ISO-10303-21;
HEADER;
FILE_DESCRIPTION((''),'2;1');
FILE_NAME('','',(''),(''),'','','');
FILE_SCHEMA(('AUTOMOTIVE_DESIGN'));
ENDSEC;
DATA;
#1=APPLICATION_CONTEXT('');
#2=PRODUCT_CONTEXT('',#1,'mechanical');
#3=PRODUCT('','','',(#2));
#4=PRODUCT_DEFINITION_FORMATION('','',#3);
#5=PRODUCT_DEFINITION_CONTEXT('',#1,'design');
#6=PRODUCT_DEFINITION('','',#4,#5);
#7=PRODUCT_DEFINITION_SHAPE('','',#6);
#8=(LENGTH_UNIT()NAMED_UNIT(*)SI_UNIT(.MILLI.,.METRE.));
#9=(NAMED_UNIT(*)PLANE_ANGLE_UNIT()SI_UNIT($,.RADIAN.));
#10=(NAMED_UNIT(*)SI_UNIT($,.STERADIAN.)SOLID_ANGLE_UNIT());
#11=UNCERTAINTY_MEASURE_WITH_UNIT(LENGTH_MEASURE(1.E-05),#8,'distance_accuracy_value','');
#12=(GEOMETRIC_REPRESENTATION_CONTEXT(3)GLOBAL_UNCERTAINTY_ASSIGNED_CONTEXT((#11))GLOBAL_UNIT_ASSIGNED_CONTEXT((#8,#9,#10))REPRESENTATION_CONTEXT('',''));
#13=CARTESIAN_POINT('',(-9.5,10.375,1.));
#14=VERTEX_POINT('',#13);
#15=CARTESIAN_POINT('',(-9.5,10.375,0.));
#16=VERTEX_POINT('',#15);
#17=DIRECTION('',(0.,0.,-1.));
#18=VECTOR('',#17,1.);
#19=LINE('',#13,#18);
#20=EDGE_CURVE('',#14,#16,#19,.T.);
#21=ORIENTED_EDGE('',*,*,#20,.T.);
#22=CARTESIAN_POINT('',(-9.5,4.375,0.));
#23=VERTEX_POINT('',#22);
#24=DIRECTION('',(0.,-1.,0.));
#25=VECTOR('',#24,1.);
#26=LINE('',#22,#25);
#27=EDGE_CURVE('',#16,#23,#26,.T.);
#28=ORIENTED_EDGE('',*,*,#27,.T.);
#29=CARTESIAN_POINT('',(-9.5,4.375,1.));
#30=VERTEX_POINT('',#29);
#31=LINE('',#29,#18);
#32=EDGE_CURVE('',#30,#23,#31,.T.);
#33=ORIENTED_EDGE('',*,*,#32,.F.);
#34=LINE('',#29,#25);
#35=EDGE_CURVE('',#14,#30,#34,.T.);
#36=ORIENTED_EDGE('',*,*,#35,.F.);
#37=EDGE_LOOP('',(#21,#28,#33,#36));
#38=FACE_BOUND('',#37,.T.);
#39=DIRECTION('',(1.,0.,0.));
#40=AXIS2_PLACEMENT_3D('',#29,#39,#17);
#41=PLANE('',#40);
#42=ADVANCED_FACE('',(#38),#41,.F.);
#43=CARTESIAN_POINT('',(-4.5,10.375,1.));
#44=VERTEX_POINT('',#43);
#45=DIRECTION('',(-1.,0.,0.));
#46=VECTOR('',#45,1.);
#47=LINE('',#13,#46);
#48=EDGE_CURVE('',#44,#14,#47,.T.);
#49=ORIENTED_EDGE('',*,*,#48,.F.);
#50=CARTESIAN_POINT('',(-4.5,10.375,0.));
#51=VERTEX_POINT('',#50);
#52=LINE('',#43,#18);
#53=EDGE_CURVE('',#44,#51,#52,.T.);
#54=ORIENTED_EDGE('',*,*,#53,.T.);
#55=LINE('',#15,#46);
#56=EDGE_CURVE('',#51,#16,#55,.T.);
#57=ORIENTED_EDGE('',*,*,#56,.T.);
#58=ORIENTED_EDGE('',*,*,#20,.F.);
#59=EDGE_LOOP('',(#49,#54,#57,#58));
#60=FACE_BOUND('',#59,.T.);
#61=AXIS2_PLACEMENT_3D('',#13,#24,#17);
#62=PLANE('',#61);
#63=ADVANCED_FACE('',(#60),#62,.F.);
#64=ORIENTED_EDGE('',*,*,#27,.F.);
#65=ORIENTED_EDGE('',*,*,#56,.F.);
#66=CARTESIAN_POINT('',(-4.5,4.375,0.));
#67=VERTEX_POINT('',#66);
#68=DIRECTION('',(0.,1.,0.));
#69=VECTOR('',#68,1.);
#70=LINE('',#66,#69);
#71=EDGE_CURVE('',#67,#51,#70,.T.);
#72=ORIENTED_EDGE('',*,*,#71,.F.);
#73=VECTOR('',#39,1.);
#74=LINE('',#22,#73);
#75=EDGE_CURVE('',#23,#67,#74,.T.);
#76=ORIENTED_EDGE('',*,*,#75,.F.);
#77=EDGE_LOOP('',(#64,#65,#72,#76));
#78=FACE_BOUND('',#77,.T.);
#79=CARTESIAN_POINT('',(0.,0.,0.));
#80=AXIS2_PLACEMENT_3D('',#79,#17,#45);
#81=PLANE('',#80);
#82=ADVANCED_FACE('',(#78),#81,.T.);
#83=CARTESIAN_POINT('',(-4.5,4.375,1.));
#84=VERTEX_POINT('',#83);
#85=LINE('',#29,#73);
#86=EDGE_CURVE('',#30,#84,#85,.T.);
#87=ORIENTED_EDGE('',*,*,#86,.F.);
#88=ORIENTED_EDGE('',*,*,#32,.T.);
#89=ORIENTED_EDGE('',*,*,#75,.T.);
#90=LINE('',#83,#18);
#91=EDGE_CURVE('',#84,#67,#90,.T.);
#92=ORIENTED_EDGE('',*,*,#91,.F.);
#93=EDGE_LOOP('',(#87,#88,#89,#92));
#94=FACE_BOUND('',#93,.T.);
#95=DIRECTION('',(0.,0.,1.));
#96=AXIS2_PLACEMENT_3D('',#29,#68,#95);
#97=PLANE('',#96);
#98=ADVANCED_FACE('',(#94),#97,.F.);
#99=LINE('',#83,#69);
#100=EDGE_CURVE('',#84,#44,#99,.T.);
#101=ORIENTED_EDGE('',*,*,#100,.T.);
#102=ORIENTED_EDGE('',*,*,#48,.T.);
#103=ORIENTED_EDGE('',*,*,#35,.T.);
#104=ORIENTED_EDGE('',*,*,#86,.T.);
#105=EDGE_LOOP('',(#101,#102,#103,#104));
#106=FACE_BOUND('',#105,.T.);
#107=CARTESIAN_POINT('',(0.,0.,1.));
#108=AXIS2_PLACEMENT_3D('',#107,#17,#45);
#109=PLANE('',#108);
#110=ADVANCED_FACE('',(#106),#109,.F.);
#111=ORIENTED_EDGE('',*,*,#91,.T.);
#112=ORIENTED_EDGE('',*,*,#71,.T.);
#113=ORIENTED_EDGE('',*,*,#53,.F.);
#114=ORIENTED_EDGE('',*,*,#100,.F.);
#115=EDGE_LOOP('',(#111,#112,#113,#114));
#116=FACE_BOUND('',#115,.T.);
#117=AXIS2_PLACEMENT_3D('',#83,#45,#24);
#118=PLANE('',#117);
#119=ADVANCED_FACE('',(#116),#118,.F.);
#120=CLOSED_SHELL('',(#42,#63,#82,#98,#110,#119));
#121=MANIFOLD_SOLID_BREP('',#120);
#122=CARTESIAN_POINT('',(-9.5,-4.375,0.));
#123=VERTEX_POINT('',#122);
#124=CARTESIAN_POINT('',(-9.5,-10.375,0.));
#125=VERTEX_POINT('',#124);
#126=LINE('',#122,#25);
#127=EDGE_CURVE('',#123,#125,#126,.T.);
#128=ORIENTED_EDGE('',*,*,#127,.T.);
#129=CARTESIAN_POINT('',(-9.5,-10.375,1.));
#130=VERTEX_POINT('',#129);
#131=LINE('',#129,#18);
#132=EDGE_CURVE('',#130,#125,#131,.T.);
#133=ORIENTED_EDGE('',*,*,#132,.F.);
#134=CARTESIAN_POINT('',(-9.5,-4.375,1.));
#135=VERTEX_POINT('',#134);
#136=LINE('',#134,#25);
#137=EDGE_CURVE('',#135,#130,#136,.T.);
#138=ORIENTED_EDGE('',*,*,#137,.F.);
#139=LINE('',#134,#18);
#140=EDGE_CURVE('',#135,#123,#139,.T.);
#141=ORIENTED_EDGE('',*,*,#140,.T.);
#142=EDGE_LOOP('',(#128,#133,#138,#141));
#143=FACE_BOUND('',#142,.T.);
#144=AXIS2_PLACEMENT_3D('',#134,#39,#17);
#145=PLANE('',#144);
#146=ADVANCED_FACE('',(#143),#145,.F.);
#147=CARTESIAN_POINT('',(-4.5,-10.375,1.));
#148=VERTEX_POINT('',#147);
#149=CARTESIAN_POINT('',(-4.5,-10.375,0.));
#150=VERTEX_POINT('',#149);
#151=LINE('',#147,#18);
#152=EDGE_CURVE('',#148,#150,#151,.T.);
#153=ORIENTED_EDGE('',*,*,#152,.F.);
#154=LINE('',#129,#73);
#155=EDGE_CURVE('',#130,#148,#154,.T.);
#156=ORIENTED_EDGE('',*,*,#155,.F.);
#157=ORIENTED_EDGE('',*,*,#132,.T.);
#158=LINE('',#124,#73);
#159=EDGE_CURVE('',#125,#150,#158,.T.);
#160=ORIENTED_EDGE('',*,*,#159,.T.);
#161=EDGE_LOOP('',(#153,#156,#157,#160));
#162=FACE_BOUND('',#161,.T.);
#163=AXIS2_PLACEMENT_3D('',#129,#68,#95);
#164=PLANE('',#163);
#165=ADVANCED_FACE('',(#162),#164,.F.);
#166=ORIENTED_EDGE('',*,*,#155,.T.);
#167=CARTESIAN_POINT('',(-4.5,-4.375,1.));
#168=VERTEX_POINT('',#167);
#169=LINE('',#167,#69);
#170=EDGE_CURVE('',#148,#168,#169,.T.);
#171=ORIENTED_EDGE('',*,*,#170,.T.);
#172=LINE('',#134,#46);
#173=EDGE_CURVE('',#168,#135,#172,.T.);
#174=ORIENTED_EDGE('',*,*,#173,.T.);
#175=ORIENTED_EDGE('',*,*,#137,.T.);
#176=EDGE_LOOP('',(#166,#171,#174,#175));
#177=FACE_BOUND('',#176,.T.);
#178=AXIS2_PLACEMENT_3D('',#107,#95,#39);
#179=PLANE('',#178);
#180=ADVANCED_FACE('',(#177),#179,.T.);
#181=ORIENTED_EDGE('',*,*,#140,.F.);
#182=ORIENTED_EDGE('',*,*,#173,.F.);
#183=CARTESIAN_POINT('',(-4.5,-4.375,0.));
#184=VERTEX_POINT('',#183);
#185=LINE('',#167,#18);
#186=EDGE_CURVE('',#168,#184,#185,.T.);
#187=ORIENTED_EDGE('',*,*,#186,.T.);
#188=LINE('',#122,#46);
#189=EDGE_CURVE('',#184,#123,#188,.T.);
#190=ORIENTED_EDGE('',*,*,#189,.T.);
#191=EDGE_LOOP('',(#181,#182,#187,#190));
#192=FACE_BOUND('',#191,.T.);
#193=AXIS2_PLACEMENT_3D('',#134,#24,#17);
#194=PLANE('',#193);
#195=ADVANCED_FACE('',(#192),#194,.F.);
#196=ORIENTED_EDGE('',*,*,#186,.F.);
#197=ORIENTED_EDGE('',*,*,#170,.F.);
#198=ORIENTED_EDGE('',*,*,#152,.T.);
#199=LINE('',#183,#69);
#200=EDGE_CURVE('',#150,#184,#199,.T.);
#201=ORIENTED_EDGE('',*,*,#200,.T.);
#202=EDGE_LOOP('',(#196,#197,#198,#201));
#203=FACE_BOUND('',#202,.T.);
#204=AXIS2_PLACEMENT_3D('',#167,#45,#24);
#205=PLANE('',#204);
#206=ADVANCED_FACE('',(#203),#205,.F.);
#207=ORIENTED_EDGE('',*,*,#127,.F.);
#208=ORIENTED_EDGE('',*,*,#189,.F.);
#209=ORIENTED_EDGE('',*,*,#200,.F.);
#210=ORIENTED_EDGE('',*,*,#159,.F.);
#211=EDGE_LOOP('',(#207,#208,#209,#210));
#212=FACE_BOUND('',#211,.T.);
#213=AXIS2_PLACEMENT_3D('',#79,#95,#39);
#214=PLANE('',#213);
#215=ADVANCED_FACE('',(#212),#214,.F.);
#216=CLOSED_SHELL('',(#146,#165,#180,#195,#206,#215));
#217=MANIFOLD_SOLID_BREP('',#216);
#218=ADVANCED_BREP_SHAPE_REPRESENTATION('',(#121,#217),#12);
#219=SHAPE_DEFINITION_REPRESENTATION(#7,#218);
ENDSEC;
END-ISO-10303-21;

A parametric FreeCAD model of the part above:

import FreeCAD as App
import Part
import Sketcher
from FreeCAD import Vector

doc = App.newDocument("Part")
params = doc.addObject("Spreadsheet::Sheet", "Params")
for row, (alias, value) in enumerate([
    ("sketch1_width", "5 mm"),
    ("sketch1_height", "6 mm"),
    ("pad1_length", "1 mm"),
    ("sketch2_width", "5 mm"),
    ("sketch2_height", "6 mm"),
    ("pad2_length", "1 mm"),
], start=1):
    params.set(f"A{row}", alias)
    params.set(f"B{row}", "=" + value)
    params.setAlias(f"B{row}", alias)

body = doc.addObject("PartDesign::Body", "Body")

# Sketch on XY plane
sketch1 = doc.addObject("Sketcher::SketchObject", "Sketch")
body.addObject(sketch1)
sketch1.AttachmentSupport = (doc.XY_Plane, [""])
sketch1.MapMode = "FlatFace"
sketch1.addGeometry([
    Part.LineSegment(Vector(-10, 10, 0), Vector(-10, 4, 0)),
    Part.LineSegment(Vector(-10, 4, 0), Vector(-4, 4, 0)),
    Part.LineSegment(Vector(-4, 4, 0), Vector(-4, 10, 0)),
    Part.LineSegment(Vector(-4, 10, 0), Vector(-10, 10, 0)),
], False)
sketch1.addConstraint([
    Sketcher.Constraint("Coincident", 0, 2, 1, 1),
    Sketcher.Constraint("Coincident", 1, 2, 2, 1),
    Sketcher.Constraint("Coincident", 2, 2, 3, 1),
    Sketcher.Constraint("Coincident", 3, 2, 0, 1),
    Sketcher.Constraint("Vertical", 0),
    Sketcher.Constraint("Horizontal", 1),
    Sketcher.Constraint("Vertical", 2),
    Sketcher.Constraint("Horizontal", 3),
    Sketcher.Constraint("DistanceX", 1, 1, 1, 2, 5.0),
    Sketcher.Constraint("DistanceY", 0, 2, 0, 1, 6.0),
    Sketcher.Constraint("DistanceX", 0, 2, -1, 1, 9.5),
    Sketcher.Constraint("DistanceY", -1, 1, 0, 2, 4.375),
])
sketch1.setExpression("Constraints[8]", "Params.sketch1_width")
sketch1.setExpression("Constraints[9]", "Params.sketch1_height")
pad1 = doc.addObject("PartDesign::Pad", "Pad")
body.addObject(pad1)
pad1.Profile = sketch1
pad1.setExpression("Length", "Params.pad1_length")
body2 = doc.addObject("PartDesign::Body", "Body001")

# Sketch on XY plane
sketch2 = doc.addObject("Sketcher::SketchObject", "Sketch001")
body2.addObject(sketch2)
sketch2.AttachmentSupport = (doc.getObject("XY_Plane001"), [""])
sketch2.MapMode = "FlatFace"
sketch2.addGeometry([
    Part.LineSegment(Vector(-10, -4, 0), Vector(-10, -10, 0)),
    Part.LineSegment(Vector(-10, -10, 0), Vector(-4, -10, 0)),
    Part.LineSegment(Vector(-4, -10, 0), Vector(-4, -4, 0)),
    Part.LineSegment(Vector(-4, -4, 0), Vector(-10, -4, 0)),
], False)
sketch2.addConstraint([
    Sketcher.Constraint("Coincident", 0, 2, 1, 1),
    Sketcher.Constraint("Coincident", 1, 2, 2, 1),
    Sketcher.Constraint("Coincident", 2, 2, 3, 1),
    Sketcher.Constraint("Coincident", 3, 2, 0, 1),
    Sketcher.Constraint("Vertical", 0),
    Sketcher.Constraint("Horizontal", 1),
    Sketcher.Constraint("Vertical", 2),
    Sketcher.Constraint("Horizontal", 3),
    Sketcher.Constraint("DistanceX", 1, 1, 1, 2, 5.0),
    Sketcher.Constraint("DistanceY", 0, 2, 0, 1, 6.0),
    Sketcher.Constraint("DistanceX", 0, 2, -1, 1, 9.5),
    Sketcher.Constraint("DistanceY", 0, 2, -1, 1, 10.375),
])
sketch2.setExpression("Constraints[8]", "Params.sketch2_width")
sketch2.setExpression("Constraints[9]", "Params.sketch2_height")
pad2 = doc.addObject("PartDesign::Pad", "Pad001")
body2.addObject(pad2)
pad2.Profile = sketch2
pad2.setExpression("Length", "Params.pad2_length")

doc.recompute()
